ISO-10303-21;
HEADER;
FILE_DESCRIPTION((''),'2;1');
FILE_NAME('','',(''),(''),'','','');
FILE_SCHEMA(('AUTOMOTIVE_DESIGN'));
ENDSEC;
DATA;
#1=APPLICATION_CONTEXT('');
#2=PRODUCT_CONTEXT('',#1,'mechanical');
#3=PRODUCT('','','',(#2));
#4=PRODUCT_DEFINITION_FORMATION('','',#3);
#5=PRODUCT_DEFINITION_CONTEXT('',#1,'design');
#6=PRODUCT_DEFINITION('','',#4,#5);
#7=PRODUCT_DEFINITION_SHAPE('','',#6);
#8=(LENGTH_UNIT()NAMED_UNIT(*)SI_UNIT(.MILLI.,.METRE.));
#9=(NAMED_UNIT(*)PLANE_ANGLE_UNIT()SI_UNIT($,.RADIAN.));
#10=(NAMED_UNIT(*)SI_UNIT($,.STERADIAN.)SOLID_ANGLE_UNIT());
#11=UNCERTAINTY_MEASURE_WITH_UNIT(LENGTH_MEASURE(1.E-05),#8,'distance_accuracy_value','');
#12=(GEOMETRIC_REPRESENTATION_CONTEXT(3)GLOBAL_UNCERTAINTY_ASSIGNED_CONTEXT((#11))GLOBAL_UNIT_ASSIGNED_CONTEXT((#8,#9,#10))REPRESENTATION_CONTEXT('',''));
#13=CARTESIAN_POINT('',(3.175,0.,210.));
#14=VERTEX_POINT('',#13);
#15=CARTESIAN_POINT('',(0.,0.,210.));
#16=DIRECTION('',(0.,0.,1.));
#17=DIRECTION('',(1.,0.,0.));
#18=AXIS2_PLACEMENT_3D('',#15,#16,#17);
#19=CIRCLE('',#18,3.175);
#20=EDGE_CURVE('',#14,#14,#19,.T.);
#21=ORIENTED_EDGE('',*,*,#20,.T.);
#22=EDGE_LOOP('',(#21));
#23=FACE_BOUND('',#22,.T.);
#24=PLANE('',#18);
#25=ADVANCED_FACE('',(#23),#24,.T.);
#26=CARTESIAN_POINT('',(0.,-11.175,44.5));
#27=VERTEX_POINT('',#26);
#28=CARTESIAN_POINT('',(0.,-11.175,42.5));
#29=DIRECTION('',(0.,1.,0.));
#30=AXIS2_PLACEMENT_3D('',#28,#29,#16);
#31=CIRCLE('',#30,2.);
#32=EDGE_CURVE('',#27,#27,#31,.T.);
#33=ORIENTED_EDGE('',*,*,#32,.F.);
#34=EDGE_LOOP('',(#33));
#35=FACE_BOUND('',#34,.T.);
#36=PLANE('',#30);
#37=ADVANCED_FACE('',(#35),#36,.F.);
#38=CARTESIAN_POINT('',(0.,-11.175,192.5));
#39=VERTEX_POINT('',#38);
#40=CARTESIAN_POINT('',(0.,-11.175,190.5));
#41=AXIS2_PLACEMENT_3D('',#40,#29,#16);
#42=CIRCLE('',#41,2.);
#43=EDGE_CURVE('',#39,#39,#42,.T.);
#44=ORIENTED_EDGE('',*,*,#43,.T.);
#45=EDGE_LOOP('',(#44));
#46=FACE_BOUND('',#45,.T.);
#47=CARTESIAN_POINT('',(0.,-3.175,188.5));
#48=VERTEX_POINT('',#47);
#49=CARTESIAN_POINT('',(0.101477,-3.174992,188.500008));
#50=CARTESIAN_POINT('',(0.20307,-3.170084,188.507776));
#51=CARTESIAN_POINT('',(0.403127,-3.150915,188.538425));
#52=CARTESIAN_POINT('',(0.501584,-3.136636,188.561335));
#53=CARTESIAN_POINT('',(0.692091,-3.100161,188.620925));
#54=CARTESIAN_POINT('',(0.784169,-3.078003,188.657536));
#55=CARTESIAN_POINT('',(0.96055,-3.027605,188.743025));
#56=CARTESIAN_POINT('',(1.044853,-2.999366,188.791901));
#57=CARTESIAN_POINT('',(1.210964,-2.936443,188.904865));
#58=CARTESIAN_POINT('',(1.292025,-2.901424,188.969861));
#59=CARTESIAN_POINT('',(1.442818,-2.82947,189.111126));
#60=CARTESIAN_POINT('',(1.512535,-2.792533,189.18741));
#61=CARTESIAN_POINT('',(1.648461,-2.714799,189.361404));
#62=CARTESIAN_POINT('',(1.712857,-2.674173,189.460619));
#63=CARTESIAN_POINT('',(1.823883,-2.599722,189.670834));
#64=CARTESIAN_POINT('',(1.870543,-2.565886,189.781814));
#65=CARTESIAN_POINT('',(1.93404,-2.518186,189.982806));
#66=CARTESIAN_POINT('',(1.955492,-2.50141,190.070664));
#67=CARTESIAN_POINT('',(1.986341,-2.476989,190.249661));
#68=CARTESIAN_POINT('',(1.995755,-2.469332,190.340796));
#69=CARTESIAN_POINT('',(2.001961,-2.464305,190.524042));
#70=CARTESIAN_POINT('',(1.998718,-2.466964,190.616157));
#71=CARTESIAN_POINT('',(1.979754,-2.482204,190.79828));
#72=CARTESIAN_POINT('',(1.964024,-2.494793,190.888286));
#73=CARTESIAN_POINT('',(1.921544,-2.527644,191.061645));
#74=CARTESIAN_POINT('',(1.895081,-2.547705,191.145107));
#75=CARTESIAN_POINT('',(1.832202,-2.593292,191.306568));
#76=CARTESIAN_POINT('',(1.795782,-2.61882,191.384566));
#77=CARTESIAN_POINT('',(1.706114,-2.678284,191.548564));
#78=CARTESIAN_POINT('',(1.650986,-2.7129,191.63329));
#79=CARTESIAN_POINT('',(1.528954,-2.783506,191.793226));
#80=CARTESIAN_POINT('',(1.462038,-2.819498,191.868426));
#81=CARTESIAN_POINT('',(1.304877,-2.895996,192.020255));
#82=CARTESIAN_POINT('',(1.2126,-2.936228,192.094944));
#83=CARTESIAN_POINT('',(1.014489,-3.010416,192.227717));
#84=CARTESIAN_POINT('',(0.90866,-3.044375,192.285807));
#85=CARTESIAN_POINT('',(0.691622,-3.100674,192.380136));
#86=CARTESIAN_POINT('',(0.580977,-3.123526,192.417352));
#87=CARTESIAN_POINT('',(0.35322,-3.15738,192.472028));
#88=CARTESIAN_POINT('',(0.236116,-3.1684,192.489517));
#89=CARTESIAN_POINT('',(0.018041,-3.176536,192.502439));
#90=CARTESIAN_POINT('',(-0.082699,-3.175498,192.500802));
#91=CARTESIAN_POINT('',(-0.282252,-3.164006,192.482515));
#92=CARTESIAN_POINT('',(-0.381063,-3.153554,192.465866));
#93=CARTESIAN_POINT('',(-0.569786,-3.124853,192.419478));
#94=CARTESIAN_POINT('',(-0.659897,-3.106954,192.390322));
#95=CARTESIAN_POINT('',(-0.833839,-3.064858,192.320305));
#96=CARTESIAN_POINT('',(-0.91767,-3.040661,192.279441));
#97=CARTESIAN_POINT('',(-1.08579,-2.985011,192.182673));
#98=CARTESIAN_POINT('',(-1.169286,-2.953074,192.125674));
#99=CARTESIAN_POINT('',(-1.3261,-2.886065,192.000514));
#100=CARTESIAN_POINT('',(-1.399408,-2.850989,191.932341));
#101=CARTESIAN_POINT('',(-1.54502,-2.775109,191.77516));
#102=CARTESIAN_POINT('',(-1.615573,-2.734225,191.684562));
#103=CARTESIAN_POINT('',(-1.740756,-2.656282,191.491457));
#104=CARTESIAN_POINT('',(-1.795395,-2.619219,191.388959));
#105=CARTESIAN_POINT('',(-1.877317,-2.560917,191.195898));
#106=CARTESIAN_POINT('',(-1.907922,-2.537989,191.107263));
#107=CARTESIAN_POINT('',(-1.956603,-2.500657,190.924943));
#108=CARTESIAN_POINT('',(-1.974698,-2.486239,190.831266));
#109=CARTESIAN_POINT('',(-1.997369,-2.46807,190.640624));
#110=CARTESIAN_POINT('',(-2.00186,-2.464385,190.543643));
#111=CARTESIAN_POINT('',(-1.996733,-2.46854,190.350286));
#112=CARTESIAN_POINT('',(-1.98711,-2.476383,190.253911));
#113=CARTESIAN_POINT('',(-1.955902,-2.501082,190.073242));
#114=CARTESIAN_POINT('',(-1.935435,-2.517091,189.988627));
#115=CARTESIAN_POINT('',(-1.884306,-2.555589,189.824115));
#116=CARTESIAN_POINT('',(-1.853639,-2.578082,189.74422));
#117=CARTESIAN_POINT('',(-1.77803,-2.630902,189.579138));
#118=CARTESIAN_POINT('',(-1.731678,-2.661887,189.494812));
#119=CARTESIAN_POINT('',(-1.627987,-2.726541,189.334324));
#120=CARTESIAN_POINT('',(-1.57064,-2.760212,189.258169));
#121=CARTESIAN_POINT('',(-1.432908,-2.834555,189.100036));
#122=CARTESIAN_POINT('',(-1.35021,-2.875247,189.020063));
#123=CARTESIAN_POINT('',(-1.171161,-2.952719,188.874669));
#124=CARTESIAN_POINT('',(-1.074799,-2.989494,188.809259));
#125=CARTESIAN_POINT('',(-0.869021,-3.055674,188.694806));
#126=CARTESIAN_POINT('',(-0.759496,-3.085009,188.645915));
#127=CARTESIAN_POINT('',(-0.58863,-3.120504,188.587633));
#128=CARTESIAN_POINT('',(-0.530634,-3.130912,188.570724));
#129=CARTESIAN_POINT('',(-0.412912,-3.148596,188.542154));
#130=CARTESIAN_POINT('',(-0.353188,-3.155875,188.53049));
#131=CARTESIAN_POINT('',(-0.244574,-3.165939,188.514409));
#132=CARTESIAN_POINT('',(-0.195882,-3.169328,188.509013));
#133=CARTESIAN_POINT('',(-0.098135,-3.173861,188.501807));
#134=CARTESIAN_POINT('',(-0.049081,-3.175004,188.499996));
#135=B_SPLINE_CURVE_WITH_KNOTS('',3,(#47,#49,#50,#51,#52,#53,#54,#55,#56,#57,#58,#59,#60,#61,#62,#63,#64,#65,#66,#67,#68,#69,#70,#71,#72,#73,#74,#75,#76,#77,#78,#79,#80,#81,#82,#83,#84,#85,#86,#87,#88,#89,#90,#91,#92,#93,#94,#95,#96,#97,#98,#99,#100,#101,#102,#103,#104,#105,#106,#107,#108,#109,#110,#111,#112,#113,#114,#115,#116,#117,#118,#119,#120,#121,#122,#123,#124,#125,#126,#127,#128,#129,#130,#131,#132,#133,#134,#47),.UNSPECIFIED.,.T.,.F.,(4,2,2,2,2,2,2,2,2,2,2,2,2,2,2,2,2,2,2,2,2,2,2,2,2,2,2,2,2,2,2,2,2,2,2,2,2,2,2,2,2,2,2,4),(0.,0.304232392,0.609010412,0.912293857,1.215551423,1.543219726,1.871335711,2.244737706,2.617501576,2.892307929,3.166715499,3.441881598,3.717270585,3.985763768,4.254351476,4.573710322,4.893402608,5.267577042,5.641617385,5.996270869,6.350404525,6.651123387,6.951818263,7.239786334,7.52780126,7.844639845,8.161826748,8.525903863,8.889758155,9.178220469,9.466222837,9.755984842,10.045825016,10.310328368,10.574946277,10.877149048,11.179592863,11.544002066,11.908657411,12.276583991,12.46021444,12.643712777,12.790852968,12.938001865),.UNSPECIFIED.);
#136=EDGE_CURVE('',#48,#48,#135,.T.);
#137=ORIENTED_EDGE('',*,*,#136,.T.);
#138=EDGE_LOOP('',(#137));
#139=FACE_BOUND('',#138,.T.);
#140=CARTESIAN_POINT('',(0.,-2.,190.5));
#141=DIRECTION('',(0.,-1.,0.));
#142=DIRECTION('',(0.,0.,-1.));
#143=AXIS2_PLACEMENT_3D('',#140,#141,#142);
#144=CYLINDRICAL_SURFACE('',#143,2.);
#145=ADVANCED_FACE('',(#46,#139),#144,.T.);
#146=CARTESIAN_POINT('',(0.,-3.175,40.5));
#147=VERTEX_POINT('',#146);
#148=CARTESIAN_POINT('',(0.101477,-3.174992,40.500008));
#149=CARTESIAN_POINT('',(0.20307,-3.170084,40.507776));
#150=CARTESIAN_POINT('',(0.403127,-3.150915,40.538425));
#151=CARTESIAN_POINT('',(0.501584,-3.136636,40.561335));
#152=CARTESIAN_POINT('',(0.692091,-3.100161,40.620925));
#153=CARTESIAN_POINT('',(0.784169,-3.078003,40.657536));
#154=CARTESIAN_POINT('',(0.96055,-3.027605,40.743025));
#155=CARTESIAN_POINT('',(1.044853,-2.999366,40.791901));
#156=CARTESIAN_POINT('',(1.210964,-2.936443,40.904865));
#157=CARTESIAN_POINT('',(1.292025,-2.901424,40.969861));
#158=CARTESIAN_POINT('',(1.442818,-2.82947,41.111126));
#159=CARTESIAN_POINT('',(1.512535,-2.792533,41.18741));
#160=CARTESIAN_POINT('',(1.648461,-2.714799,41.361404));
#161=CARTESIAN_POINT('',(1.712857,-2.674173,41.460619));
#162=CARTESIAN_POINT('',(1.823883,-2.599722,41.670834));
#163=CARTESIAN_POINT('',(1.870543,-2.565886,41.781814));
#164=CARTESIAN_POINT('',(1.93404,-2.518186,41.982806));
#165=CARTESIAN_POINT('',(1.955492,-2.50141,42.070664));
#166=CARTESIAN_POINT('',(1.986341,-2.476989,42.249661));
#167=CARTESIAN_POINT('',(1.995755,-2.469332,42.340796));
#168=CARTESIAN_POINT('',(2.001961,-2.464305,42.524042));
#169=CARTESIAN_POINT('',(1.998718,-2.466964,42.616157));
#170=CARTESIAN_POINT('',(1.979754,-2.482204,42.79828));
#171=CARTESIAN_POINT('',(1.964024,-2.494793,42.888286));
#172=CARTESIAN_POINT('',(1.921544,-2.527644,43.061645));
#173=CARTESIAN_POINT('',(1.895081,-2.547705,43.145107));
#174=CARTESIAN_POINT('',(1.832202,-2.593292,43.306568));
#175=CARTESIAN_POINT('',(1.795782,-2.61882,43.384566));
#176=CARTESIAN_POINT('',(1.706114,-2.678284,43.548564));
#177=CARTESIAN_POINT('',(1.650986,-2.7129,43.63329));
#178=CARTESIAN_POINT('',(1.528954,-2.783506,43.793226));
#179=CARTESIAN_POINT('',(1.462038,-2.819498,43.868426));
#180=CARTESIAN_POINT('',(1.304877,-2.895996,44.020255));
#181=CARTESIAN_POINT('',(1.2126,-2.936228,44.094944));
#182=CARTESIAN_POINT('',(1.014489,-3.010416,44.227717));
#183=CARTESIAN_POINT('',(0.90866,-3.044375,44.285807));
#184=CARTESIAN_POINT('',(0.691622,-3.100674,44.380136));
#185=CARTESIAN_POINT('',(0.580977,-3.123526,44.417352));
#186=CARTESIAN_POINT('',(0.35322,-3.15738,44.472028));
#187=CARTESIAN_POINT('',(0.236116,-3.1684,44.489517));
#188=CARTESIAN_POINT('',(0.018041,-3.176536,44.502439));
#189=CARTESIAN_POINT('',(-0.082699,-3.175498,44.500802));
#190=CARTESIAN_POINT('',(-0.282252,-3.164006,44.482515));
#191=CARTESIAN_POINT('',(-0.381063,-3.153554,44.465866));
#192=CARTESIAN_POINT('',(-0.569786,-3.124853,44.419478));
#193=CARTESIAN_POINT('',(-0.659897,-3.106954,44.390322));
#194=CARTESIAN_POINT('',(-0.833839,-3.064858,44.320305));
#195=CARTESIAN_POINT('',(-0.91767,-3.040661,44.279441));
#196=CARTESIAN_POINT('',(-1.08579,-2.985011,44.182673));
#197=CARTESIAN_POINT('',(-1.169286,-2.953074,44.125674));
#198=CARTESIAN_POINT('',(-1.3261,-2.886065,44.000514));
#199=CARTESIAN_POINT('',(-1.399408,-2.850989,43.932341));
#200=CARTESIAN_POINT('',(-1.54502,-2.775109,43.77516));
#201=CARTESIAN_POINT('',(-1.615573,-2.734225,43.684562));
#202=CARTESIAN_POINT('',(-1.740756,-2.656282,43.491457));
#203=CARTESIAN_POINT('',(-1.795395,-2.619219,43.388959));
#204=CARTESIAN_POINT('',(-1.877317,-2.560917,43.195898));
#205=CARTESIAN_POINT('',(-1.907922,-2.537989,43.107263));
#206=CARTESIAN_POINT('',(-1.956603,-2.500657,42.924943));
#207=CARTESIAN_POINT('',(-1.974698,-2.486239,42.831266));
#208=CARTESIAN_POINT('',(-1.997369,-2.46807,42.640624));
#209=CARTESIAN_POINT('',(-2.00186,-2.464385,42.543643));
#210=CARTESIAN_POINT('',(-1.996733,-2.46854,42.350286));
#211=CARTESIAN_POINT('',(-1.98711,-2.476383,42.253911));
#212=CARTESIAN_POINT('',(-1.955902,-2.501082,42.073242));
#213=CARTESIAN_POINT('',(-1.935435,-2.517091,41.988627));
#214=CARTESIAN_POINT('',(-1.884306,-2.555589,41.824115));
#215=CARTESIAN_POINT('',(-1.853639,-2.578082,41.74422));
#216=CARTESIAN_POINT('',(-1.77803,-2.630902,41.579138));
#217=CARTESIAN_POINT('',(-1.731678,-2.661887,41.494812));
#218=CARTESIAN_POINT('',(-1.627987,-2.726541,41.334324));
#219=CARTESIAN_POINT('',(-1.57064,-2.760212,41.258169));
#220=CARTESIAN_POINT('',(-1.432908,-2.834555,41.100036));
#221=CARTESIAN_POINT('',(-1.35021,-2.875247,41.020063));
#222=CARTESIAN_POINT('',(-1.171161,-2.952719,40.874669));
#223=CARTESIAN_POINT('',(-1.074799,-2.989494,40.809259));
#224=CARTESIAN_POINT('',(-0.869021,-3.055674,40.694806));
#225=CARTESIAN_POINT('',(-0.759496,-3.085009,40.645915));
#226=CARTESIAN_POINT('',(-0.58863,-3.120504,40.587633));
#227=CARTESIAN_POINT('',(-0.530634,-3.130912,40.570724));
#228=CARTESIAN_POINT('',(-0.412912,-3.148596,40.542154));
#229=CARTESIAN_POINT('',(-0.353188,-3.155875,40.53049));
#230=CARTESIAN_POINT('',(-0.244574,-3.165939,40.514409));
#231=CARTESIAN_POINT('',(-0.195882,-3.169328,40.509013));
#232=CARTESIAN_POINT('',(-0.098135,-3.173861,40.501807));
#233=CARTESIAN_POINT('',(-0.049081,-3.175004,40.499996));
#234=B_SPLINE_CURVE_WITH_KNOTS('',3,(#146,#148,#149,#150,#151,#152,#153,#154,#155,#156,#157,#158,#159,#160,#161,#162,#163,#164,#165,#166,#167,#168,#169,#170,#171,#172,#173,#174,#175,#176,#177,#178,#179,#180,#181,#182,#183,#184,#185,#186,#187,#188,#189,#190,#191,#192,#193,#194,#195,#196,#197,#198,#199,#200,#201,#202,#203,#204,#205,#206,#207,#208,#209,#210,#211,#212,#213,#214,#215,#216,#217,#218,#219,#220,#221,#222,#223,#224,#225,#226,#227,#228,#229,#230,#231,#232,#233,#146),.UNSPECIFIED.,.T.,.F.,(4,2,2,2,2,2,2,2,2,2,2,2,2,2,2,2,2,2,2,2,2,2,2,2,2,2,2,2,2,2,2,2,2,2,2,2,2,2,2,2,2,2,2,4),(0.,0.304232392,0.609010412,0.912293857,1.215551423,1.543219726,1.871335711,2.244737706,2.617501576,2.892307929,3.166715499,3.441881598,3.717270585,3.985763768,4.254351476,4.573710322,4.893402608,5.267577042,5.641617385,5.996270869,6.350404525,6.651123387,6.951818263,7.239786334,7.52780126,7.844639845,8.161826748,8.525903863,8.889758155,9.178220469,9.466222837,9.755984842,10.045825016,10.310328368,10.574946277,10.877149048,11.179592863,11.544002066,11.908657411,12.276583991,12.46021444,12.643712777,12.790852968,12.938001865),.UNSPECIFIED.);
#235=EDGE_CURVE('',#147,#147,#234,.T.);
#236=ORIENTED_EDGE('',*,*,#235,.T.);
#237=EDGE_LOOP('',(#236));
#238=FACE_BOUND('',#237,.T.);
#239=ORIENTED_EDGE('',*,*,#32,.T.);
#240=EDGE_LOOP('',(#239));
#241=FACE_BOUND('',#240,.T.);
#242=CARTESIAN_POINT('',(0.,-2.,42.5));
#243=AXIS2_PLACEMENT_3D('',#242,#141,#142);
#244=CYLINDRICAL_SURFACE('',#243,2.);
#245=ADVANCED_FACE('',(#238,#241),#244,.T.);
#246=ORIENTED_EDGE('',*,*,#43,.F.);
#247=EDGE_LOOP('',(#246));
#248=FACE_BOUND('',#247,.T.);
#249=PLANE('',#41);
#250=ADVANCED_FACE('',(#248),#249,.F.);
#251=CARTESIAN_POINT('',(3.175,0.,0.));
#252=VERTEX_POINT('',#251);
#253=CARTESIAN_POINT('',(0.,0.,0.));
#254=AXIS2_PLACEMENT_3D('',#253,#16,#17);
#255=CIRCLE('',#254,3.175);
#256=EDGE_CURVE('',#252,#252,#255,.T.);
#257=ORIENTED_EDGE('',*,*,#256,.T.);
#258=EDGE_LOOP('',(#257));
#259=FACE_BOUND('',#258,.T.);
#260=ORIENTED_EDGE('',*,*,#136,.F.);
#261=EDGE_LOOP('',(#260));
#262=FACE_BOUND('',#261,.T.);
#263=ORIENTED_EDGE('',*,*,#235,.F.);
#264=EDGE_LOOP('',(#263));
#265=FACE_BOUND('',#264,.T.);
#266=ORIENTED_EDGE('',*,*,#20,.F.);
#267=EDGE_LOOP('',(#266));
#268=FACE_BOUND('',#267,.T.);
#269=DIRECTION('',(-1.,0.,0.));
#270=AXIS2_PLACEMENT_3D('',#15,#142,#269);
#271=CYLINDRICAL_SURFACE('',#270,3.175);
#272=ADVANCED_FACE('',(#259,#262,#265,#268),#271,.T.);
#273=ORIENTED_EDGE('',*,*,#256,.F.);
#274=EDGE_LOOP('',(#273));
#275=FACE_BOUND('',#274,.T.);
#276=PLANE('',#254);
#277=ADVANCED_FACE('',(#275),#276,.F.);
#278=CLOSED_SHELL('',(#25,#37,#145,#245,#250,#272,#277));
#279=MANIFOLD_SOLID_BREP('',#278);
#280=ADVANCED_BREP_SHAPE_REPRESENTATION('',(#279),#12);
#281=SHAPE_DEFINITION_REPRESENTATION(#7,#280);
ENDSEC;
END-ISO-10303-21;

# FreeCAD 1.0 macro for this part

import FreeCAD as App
import Part
import Sketcher

V = App.Vector

doc = App.newDocument("Part")
body = doc.addObject("PartDesign::Body", "Body")

sketch1 = body.newObject("Sketcher::SketchObject", "Sketch")
sketch1.AttachmentSupport = (doc.getObject("XY_Plane"), [""])
sketch1.MapMode = "FlatFace"
sketch1.addGeometry(Part.Circle(V(0, 0, 0), V(0, 0, 1), 3.2), False)
sketch1.addConstraint(Sketcher.Constraint("Coincident", 0, 3, -1, 1))
sketch1.addConstraint(Sketcher.Constraint("Diameter", 0, 6.35))
pad1 = body.newObject("PartDesign::Pad", "Pad")
pad1.Profile = sketch1
pad1.Length = 210

sketch2 = body.newObject("Sketcher::SketchObject", "Sketch001")
sketch2.AttachmentSupport = (doc.getObject("XZ_Plane"), [""])
sketch2.MapMode = "FlatFace"
sketch2.AttachmentOffset = App.Placement(V(0, 0, 11.175), App.Rotation())
sketch2.addGeometry(Part.Circle(V(0, 42.5, 0), V(0, 0, 1), 2), False)
sketch2.addGeometry(Part.Circle(V(0, 190.5, 0), V(0, 0, 1), 2), False)
sketch2.addConstraint(Sketcher.Constraint("Equal", 0, 1))
sketch2.addConstraint(Sketcher.Constraint("PointOnObject", 0, 3, -2))
sketch2.addConstraint(Sketcher.Constraint("PointOnObject", 1, 3, -2))
sketch2.addConstraint(Sketcher.Constraint("Diameter", 0, 4.0))
sketch2.addConstraint(Sketcher.Constraint("DistanceY", 0, 3, 1, 3, 148.0))
sketch2.addConstraint(Sketcher.Constraint("DistanceY", -1, 1, 0, 3, 42.5))
pad2 = body.newObject("PartDesign::Pad", "Pad001")
pad2.Profile = sketch2
pad2.Length = 9.175
pad2.Reversed = True

doc.recompute()
